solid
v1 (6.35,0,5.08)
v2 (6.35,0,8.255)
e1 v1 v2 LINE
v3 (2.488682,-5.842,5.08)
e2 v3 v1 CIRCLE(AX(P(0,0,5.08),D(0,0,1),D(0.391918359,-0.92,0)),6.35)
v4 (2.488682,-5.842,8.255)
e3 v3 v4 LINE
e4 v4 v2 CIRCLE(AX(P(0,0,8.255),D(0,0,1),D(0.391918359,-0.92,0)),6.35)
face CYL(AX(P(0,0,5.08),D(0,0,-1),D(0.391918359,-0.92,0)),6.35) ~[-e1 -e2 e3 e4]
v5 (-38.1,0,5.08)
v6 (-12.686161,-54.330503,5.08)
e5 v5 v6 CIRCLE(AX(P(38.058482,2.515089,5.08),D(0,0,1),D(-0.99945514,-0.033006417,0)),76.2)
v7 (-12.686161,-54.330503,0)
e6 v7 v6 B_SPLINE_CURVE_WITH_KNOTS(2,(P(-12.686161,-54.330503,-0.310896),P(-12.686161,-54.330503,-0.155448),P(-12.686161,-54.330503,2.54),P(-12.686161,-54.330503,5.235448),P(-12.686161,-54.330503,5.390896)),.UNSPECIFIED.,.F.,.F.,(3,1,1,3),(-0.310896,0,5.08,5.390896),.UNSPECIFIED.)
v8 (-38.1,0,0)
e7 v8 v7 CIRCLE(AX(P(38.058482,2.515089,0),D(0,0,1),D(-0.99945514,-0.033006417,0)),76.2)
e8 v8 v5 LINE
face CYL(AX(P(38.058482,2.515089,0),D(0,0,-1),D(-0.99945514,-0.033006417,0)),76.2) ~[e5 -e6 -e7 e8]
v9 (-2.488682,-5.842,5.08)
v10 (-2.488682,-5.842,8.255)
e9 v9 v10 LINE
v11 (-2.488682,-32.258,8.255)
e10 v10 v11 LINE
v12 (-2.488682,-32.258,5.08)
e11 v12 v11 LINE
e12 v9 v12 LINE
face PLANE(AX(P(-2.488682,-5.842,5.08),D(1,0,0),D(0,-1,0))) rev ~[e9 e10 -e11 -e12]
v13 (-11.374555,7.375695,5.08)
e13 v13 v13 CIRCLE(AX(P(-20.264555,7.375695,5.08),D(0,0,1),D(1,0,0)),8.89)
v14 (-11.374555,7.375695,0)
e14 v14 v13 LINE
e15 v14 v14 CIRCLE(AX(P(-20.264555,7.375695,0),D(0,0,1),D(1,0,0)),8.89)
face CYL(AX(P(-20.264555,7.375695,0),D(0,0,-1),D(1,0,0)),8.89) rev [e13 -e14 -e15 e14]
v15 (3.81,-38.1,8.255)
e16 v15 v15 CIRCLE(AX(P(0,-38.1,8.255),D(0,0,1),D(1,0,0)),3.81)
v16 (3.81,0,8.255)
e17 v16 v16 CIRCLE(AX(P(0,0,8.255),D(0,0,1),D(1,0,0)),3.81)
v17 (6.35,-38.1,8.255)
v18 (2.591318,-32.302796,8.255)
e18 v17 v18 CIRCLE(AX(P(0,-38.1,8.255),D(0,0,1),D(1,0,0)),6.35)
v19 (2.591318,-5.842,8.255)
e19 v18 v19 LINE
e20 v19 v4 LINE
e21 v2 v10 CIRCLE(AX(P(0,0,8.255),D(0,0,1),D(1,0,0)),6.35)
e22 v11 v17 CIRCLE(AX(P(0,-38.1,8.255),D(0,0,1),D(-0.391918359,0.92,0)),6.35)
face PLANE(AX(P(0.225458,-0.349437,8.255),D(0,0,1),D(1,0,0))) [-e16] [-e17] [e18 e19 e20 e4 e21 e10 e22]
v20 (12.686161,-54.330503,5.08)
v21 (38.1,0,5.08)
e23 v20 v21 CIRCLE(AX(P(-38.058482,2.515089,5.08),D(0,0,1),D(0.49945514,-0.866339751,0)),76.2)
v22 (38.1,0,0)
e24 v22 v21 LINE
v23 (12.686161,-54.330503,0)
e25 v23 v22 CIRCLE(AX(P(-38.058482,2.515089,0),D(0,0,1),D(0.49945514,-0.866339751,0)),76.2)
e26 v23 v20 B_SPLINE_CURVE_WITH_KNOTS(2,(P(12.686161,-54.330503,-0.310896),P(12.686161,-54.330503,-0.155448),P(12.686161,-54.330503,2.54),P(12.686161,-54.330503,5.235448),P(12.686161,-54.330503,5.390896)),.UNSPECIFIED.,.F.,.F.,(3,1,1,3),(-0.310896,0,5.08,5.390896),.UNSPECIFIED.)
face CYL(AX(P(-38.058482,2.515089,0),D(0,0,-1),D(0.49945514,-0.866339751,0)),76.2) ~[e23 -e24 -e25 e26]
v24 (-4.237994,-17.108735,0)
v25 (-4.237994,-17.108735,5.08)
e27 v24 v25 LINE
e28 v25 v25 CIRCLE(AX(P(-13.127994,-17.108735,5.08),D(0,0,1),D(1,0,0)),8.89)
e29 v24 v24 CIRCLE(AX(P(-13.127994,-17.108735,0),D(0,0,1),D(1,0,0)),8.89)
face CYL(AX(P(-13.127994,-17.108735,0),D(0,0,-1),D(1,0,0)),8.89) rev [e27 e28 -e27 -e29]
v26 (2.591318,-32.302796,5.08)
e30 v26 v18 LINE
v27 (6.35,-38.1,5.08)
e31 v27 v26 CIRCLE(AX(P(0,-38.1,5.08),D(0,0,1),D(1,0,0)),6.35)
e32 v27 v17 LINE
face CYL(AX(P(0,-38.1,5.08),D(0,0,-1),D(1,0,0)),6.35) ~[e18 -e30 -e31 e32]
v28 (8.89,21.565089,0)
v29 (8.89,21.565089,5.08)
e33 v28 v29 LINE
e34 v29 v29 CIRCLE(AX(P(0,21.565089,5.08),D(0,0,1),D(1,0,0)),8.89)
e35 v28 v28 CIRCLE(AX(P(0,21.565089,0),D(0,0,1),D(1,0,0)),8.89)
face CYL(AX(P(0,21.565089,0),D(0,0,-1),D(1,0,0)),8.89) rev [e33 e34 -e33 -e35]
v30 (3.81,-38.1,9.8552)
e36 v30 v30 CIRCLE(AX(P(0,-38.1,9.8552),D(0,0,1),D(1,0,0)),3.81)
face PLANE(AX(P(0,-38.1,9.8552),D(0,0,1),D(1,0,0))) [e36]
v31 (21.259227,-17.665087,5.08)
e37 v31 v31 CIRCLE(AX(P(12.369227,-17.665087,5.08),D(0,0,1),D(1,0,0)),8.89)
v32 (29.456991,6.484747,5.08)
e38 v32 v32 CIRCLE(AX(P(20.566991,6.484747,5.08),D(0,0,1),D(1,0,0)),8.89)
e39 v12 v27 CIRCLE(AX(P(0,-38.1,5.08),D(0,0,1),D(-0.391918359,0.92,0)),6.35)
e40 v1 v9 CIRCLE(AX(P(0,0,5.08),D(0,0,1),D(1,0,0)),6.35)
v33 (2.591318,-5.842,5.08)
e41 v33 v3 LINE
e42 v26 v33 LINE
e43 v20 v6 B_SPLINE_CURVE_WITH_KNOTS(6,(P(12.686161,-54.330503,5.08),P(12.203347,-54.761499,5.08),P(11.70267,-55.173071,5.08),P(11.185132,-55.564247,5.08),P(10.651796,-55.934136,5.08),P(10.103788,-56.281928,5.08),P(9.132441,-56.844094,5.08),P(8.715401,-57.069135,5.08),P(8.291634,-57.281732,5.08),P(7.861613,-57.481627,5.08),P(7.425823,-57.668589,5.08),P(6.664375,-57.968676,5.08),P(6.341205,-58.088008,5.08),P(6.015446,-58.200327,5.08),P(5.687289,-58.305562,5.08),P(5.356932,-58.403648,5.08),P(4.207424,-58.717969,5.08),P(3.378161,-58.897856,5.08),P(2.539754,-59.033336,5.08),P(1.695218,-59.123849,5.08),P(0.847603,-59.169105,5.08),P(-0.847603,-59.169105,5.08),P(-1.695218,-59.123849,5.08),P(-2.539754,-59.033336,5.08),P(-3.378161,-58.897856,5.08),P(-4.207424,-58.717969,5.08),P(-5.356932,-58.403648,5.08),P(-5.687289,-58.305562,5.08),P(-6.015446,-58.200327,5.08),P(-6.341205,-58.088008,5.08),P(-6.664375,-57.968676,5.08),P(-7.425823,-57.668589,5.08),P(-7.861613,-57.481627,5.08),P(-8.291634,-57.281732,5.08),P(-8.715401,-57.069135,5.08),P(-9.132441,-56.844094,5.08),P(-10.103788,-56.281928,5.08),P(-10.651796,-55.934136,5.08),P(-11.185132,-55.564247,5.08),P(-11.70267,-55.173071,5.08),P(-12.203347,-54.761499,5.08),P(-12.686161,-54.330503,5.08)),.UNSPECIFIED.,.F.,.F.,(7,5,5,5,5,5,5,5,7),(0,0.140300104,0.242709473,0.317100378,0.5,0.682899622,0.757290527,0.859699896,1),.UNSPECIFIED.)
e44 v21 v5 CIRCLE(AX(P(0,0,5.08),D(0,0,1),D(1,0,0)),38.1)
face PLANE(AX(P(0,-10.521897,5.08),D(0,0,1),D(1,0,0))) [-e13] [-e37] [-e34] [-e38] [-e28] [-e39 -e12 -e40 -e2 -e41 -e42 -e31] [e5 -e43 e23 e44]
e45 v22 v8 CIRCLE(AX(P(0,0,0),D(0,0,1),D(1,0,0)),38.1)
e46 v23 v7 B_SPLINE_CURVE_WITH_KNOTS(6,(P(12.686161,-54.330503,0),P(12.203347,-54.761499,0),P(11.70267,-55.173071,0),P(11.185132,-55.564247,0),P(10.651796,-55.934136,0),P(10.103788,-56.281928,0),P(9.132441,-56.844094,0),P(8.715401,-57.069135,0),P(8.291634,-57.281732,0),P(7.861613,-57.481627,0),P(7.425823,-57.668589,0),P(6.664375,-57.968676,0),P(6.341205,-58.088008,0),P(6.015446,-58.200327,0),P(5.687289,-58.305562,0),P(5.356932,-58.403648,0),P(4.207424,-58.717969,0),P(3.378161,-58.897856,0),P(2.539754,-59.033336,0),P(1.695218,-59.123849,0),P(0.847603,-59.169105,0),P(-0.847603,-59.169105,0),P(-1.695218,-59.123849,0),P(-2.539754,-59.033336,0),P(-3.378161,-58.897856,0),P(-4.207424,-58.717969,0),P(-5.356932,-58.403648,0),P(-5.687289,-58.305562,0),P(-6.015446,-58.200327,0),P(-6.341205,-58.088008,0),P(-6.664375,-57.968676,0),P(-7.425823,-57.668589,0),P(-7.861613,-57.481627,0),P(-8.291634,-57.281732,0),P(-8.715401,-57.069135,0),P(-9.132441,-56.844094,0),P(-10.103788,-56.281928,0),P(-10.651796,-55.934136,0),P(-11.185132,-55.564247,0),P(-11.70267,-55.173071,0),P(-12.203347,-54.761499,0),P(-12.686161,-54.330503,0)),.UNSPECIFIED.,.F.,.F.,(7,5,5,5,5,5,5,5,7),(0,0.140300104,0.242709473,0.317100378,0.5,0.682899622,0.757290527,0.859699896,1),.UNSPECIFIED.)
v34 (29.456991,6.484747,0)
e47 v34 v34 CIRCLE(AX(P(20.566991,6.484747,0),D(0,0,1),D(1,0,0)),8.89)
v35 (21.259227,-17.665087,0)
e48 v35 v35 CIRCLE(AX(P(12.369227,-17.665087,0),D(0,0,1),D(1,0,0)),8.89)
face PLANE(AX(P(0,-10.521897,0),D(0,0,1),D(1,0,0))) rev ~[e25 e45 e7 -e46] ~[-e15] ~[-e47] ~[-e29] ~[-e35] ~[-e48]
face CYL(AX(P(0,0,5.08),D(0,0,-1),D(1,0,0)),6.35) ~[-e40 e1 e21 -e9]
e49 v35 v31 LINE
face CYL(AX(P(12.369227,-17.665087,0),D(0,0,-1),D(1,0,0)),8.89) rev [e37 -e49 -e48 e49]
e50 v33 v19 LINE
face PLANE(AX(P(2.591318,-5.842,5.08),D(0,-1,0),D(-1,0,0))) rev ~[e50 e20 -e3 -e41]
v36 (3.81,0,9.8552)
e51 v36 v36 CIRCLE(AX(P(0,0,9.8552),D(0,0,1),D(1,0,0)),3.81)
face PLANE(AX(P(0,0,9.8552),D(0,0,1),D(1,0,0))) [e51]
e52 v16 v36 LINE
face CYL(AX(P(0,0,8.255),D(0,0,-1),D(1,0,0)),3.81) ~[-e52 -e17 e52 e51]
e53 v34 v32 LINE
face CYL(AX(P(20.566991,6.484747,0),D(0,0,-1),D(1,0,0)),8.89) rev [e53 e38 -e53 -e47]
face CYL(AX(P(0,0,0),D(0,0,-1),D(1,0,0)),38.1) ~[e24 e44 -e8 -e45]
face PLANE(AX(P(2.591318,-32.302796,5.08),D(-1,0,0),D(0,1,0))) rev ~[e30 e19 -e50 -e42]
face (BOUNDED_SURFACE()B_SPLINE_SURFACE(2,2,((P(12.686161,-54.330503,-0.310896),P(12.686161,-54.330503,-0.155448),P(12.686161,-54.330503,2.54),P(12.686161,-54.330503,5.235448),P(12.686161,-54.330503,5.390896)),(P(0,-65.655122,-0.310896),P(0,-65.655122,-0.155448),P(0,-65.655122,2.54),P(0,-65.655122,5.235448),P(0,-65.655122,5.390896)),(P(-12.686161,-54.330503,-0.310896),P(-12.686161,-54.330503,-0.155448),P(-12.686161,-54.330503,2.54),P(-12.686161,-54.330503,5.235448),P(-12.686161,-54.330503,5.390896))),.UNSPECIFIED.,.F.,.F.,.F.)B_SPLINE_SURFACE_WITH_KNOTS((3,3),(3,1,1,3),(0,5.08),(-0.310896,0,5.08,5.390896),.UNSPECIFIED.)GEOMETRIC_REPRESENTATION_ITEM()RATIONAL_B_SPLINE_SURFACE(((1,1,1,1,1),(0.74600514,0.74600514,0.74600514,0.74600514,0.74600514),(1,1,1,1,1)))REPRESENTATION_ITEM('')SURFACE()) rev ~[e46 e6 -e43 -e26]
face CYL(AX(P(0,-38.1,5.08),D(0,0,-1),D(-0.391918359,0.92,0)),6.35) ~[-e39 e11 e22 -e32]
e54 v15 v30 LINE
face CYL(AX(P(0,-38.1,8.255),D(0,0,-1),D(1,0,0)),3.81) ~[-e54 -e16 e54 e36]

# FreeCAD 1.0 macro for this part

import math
import FreeCAD as App
import Part
import Sketcher
Q = App.Units.Quantity


def edges_at(feature, points):
    """Names of the edges that pass closest to the given points."""
    edges = feature.Shape.Edges
    near = lambda p: min(range(len(edges)), key=lambda i: edges[i].distToShape(Part.Vertex(*p))[0])
    return sorted({f"Edge{near(p) + 1}" for p in points})

doc = App.newDocument("Part")
body = doc.addObject("PartDesign::Body", "Body")

# Sketch on XY plane
sketch1 = doc.addObject("Sketcher::SketchObject", "Sketch")
body.addObject(sketch1)
sketch1.AttachmentSupport = (doc.XY_Plane, [""])
sketch1.MapMode = "FlatFace"
sketch1.addGeometry([
    Part.ArcOfCircle(Part.Circle(App.Vector(-38, 3, 0), App.Vector(0, 0, 1), 76), math.radians(-60), math.radians(-2)),  # 0
    Part.ArcOfCircle(Part.Circle(App.Vector(0, 0, 0), App.Vector(0, 0, 1), 38), math.radians(0), math.radians(180)),  # 1
    Part.ArcOfCircle(Part.Circle(App.Vector(38, 3, 0), App.Vector(0, 0, 1), 76), math.radians(-178), math.radians(-120)),  # 2
    Part.Circle(App.Vector(-13, -17, 0), App.Vector(0, 0, 1), 9),  # 3
    Part.Circle(App.Vector(12, -18, 0), App.Vector(0, 0, 1), 9),  # 4
    Part.Circle(App.Vector(-20, 7, 0), App.Vector(0, 0, 1), 9),  # 5
    Part.Circle(App.Vector(0, 22, 0), App.Vector(0, 0, 1), 9),  # 6
    Part.Circle(App.Vector(21, 6, 0), App.Vector(0, 0, 1), 9),  # 7
], False)
sketch1.addConstraint([
    Sketcher.Constraint("Coincident", 0, 2, 1, 1),
    Sketcher.Constraint("Coincident", 1, 2, 2, 1),
    Sketcher.Constraint("Coincident", 2, 2, 0, 1),
    Sketcher.Constraint("Coincident", 1, 3, -1, 1),
    Sketcher.Constraint("Equal", 0, 2),
    Sketcher.Constraint("Equal", 3, 4),
    Sketcher.Constraint("Equal", 4, 5),
    Sketcher.Constraint("Equal", 5, 6),
    Sketcher.Constraint("Equal", 6, 7),
    Sketcher.Constraint("Symmetric", 0, 3, 2, 3, -2),
    Sketcher.Constraint("PointOnObject", 6, 3, -2),
    Sketcher.Constraint("PointOnObject", 0, 2, -1),
    Sketcher.Constraint("Radius", 0, Q("3 in")),
    Sketcher.Constraint("Diameter", 3, Q("0.7 in")),
    Sketcher.Constraint("Radius", 1, Q("1.5 in")),
    Sketcher.Constraint("DistanceY", 2, 2, -1, 1, Q("2.5 in")),
    Sketcher.Constraint("DistanceY", 0, 3, 6, 3, Q("0.75 in")),
    Sketcher.Constraint("DistanceX", -1, 1, 7, 3, Q("20.566991 mm")),
    Sketcher.Constraint("DistanceX", 3, 3, 4, 3, Q("25.497221 mm")),
    Sketcher.Constraint("DistanceY", 4, 3, 3, 3, Q("0.556351 mm")),
    Sketcher.Constraint("DistanceX", 0, 3, 4, 3, Q("50.427709 mm")),
    Sketcher.Constraint("DistanceX", 5, 3, 3, 3, Q("7.136561 mm")),
    Sketcher.Constraint("DistanceY", 3, 3, 5, 3, Q("24.48443 mm")),
    Sketcher.Constraint("DistanceY", 2, 3, 7, 3, Q("3.969658 mm")),
    Sketcher.Constraint("DistanceY", 3, 3, -1, 1, Q("17.108735 mm")),
])
pad1 = doc.addObject("PartDesign::Pad", "Pad")
body.addObject(pad1)
pad1.Profile = sketch1
pad1.Length = Q("0.2 in")
doc.recompute()

fillet = doc.addObject("PartDesign::Fillet", "Fillet")
body.addObject(fillet)
fillet.Base = (pad1, edges_at(pad1, [(0, -63.5, 2.54)]))
fillet.Radius = Q("0.75 in")

# Sketch on XY plane
sketch2 = doc.addObject("Sketcher::SketchObject", "Sketch001")
body.addObject(sketch2)
sketch2.AttachmentSupport = (doc.XY_Plane, [""])
sketch2.MapMode = "FlatFace"
sketch2.AttachmentOffset = App.Placement(App.Vector(0, 0, 0.2 * 25.4), App.Rotation())
sketch2.addGeometry([
    Part.ArcOfCircle(Part.Circle(App.Vector(0, -38.1, 0), App.Vector(0, 0, 1), 6.35), math.radians(0), math.radians(66)),  # 0
    Part.LineSegment(App.Vector(2.59, -32.3, 0), App.Vector(2.59, -5.84, 0)),  # 1
    Part.LineSegment(App.Vector(2.59, -5.84, 0), App.Vector(2.49, -5.84, 0)),  # 2
    Part.ArcOfCircle(Part.Circle(App.Vector(0, 0, 0), App.Vector(0, 0, 1), 6.35), math.radians(-67), math.radians(0)),  # 3
    Part.ArcOfCircle(Part.Circle(App.Vector(0, 0, 0), App.Vector(0, 0, 1), 6.35), math.radians(0), math.radians(247)),  # 4
    Part.LineSegment(App.Vector(-2.49, -5.84, 0), App.Vector(-2.49, -32.26, 0)),  # 5
    Part.ArcOfCircle(Part.Circle(App.Vector(0, -38.1, 0), App.Vector(0, 0, 1), 6.35), math.radians(113), math.radians(360)),  # 6
], False)
sketch2.addConstraint([
    Sketcher.Constraint("Coincident", 0, 2, 1, 1),
    Sketcher.Constraint("Coincident", 1, 2, 2, 1),
    Sketcher.Constraint("Coincident", 2, 2, 3, 1),
    Sketcher.Constraint("Tangent", 3, 2, 4, 1),
    Sketcher.Constraint("Coincident", 4, 2, 5, 1),
    Sketcher.Constraint("Coincident", 5, 2, 6, 1),
    Sketcher.Constraint("Tangent", 6, 2, 0, 1),
    Sketcher.Constraint("Vertical", 1),
    Sketcher.Constraint("Horizontal", 2),
    Sketcher.Constraint("Vertical", 5),
    Sketcher.Constraint("Coincident", 3, 3, -1, 1),
    Sketcher.Constraint("Equal", 0, 3),
    Sketcher.Constraint("Equal", 3, 4),
    Sketcher.Constraint("Equal", 4, 6),
    Sketcher.Constraint("PointOnObject", 0, 3, -2),
    Sketcher.Constraint("PointOnObject", 3, 2, -1),
    Sketcher.Constraint("Horizontal", 2, 2, 4, 2),
    Sketcher.Constraint("Horizontal", 0, 3, 6, 2),
    Sketcher.Constraint("Radius", 0, Q("0.25 in")),
    Sketcher.Constraint("DistanceY", 5, 2, 5, 1, Q("1.04 in")),
    Sketcher.Constraint("DistanceY", 0, 3, -1, 1, Q("1.5 in")),
    Sketcher.Constraint("DistanceX", 4, 2, 1, 2, Q("0.2 in")),
])
pad2 = doc.addObject("PartDesign::Pad", "Pad001")
body.addObject(pad2)
pad2.Profile = sketch2
pad2.Length = Q("0.125 in")

# Sketch on XY plane
sketch3 = doc.addObject("Sketcher::SketchObject", "Sketch002")
body.addObject(sketch3)
sketch3.AttachmentSupport = (doc.XY_Plane, [""])
sketch3.MapMode = "FlatFace"
sketch3.AttachmentOffset = App.Placement(App.Vector(0, 0, 0.325 * 25.4), App.Rotation())
sketch3.addGeometry([
    Part.Circle(App.Vector(0, -38.1, 0), App.Vector(0, 0, 1), 3.8),
    Part.Circle(App.Vector(0, 0, 0), App.Vector(0, 0, 1), 3.8),
], False)
sketch3.addConstraint([
    Sketcher.Constraint("Coincident", 1, 3, -1, 1),
    Sketcher.Constraint("Equal", 0, 1),
    Sketcher.Constraint("PointOnObject", 0, 3, -2),
    Sketcher.Constraint("Diameter", 0, Q("0.3 in")),
    Sketcher.Constraint("DistanceY", 0, 3, -1, 1, Q("1.5 in")),
])
pad3 = doc.addObject("PartDesign::Pad", "Pad002")
body.addObject(pad3)
pad3.Profile = sketch3
pad3.Length = Q("0.063 in")

doc.recompute()
